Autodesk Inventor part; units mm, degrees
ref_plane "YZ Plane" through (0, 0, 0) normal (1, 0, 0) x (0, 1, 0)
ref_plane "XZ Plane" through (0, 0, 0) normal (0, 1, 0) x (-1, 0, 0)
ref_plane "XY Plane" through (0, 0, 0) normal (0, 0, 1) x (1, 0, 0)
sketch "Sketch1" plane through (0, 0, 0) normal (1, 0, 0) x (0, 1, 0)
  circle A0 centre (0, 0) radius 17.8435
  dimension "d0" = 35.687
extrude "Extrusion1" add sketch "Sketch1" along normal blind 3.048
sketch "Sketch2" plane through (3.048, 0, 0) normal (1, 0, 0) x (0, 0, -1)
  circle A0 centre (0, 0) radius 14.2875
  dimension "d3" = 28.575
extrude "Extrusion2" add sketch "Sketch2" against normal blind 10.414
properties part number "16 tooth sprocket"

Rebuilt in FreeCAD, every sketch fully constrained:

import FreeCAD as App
import Part
import Sketcher

V = App.Vector
Q = App.Units.Quantity

doc = App.newDocument("Part")
params = doc.addObject("Spreadsheet::Sheet", "Params")
for row, (alias, value) in enumerate([
    ("sketch1_diameter", "1.405 in"),
    ("pad1_length", "0.12 in"),
    ("sketch2_diameter", "1.125 in"),
    ("pad2_length", "0.41 in"),
], start=1):
    params.set(f"A{row}", alias)
    params.set(f"B{row}", "=" + value)
    params.setAlias(f"B{row}", alias)

body = doc.addObject("PartDesign::Body", "Body")

sketch1 = body.newObject("Sketcher::SketchObject", "Sketch")
sketch1.AttachmentSupport = (doc.getObject("YZ_Plane"), [""])
sketch1.MapMode = "FlatFace"
sketch1.addGeometry(Part.Circle(V(0, 0, 0), V(0, 0, 1), 17.8435), False)
sketch1.addConstraint([
    Sketcher.Constraint("Coincident", 0, 3, -1, 1),
    Sketcher.Constraint("Diameter", 0, Q("1.405 in")),
])
sketch1.setExpression("Constraints[1]", "Params.sketch1_diameter")
pad1 = body.newObject("PartDesign::Pad", "Pad")
pad1.Profile = sketch1
pad1.setExpression("Length", "Params.pad1_length")

sketch2 = body.newObject("Sketcher::SketchObject", "Sketch001")
sketch2.AttachmentSupport = (doc.getObject("YZ_Plane"), [""])
sketch2.MapMode = "FlatFace"
sketch2.AttachmentOffset = App.Placement(V(0, 0, 0.12 * 25.4), App.Rotation())
sketch2.addGeometry(Part.Circle(V(0, 0, 0), V(0, 0, 1), 14.2875), False)
sketch2.addConstraint([
    Sketcher.Constraint("Coincident", 0, 3, -1, 1),
    Sketcher.Constraint("Diameter", 0, Q("1.125 in")),
])
sketch2.setExpression("Constraints[1]", "Params.sketch2_diameter")
pad2 = body.newObject("PartDesign::Pad", "Pad001")
pad2.Profile = sketch2
pad2.setExpression("Length", "Params.pad2_length")
pad2.Reversed = True

doc.recompute()
